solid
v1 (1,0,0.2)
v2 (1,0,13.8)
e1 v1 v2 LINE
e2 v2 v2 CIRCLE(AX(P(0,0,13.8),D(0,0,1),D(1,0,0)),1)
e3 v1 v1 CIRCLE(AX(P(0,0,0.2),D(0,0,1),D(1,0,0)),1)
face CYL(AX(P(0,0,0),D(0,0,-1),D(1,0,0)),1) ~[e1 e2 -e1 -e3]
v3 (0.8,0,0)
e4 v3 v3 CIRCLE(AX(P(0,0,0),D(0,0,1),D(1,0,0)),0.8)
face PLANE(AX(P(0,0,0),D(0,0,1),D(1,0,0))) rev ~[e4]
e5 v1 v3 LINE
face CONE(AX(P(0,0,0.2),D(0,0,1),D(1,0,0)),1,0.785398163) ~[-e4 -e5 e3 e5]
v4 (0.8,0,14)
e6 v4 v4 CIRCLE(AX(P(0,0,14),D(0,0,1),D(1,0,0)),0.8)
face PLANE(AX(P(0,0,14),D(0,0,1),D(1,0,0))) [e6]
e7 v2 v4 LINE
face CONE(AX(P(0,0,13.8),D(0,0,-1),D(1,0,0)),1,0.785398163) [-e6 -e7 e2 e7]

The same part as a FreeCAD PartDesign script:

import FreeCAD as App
import Part
import Sketcher


def edges_at(feature, points):
    """Names of the edges that pass closest to the given points."""
    edges = feature.Shape.Edges
    near = lambda p: min(range(len(edges)), key=lambda i: edges[i].distToShape(Part.Vertex(*p))[0])
    return sorted({f"Edge{near(p) + 1}" for p in points})

doc = App.newDocument("Part")
body = doc.addObject("PartDesign::Body", "Body")

# Sketch on XY plane
sketch1 = body.newObject("Sketcher::SketchObject", "Sketch")
sketch1.AttachmentSupport = (doc.getObject("XY_Plane"), [""])
sketch1.MapMode = "FlatFace"
sketch1.addGeometry(Part.Circle(App.Vector(0, 0, 0), App.Vector(0, 0, 1), 1), False)
sketch1.addConstraint(Sketcher.Constraint("Coincident", 0, 3, -1, 1))
sketch1.addConstraint(Sketcher.Constraint("Diameter", 0, 2.0))
pad1 = body.newObject("PartDesign::Pad", "Pad")
pad1.Profile = sketch1
pad1.Length = 14
doc.recompute()

chamfer = body.newObject("PartDesign::Chamfer", "Chamfer")
chamfer.Base = (pad1, edges_at(pad1, [(-1, 0, 14), (-1, 0, 0)]))
chamfer.Size = 0.2

doc.recompute()
